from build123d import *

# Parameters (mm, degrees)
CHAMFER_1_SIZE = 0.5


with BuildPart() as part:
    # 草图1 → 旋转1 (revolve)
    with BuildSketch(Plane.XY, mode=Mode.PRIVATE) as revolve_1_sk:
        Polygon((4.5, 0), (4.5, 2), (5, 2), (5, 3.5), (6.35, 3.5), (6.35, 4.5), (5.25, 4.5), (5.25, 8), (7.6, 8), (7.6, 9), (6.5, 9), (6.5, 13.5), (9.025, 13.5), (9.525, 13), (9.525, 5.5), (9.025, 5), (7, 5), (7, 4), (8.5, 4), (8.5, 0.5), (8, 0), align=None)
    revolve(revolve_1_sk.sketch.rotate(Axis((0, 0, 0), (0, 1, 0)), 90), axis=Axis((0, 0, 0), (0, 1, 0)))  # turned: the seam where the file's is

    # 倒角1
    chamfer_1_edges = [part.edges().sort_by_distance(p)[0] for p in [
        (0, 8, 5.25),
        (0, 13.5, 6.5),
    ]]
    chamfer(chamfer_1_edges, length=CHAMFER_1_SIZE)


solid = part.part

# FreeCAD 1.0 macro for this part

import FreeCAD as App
import Part
import Sketcher


def edges_at(feature, points):
    """Names of the edges that pass closest to the given points."""
    edges = feature.Shape.Edges
    near = lambda p: min(range(len(edges)), key=lambda i: edges[i].distToShape(Part.Vertex(*p))[0])
    return sorted({f"Edge{near(p) + 1}" for p in points})


def add_polygon(sketch, points):
    """Adds a closed chain of lines whose ends are joined by coincident constraints."""
    first, n = sketch.GeometryCount, len(points)
    for a, b in zip(points, points[1:] + points[:1]):
        sketch.addGeometry(Part.LineSegment(App.Vector(*a, 0), App.Vector(*b, 0)), False)
    for i in range(n):
        sketch.addConstraint(Sketcher.Constraint("Coincident", first + i, 2, first + (i + 1) % n, 1))

doc = App.newDocument("Part")
body = doc.addObject("PartDesign::Body", "Body")

# Sketch on XY plane
sketch1 = doc.addObject("Sketcher::SketchObject", "Sketch")
body.addObject(sketch1)
sketch1.AttachmentSupport = (doc.XY_Plane, [""])
sketch1.MapMode = "FlatFace"
add_polygon(sketch1, [(4.5, 2), (4.5, 0), (8, 0), (8.5, 0.5), (8.5, 4), (7, 4), (7, 5), (9, 5), (9.5, 5.5), (9.5, 13), (9, 13.5), (6.5, 13.5), (6.5, 9), (7.6, 9), (7.6, 8), (5.2, 8), (5.2, 4.5), (6.3, 4.5), (6.3, 3.5), (5, 3.5), (5, 2)])  # lines 0-20
sketch1.addConstraint(Sketcher.Constraint("Vertical", 0))
sketch1.addConstraint(Sketcher.Constraint("Horizontal", 1))
sketch1.addConstraint(Sketcher.Constraint("Vertical", 3))
sketch1.addConstraint(Sketcher.Constraint("Horizontal", 4))
sketch1.addConstraint(Sketcher.Constraint("Vertical", 5))
sketch1.addConstraint(Sketcher.Constraint("Horizontal", 6))
sketch1.addConstraint(Sketcher.Constraint("Vertical", 8))
sketch1.addConstraint(Sketcher.Constraint("Horizontal", 10))
sketch1.addConstraint(Sketcher.Constraint("Vertical", 11))
sketch1.addConstraint(Sketcher.Constraint("Horizontal", 12))
sketch1.addConstraint(Sketcher.Constraint("Vertical", 13))
sketch1.addConstraint(Sketcher.Constraint("Horizontal", 14))
sketch1.addConstraint(Sketcher.Constraint("Vertical", 15))
sketch1.addConstraint(Sketcher.Constraint("Horizontal", 16))
sketch1.addConstraint(Sketcher.Constraint("Vertical", 17))
sketch1.addConstraint(Sketcher.Constraint("Horizontal", 18))
sketch1.addConstraint(Sketcher.Constraint("Vertical", 19))
sketch1.addConstraint(Sketcher.Constraint("Horizontal", 20))
sketch1.addConstraint(Sketcher.Constraint("PointOnObject", 0, 2, -1))
sketch1.addConstraint(Sketcher.Constraint("Parallel", 2, 7))
sketch1.addConstraint(Sketcher.Constraint("Perpendicular", 7, 9))
sketch1.addConstraint(Sketcher.Constraint("Vertical", 6, 2, 9, 2))
sketch1.addConstraint(Sketcher.Constraint("Equal", 12, 16))
sketch1.addConstraint(Sketcher.Constraint("Equal", 1, 3))
sketch1.addConstraint(Sketcher.Constraint("Equal", 5, 13))
sketch1.addConstraint(Sketcher.Constraint("Equal", 3, 15))
sketch1.addConstraint(Sketcher.Constraint("Equal", 13, 17))
sketch1.addConstraint(Sketcher.Constraint("Equal", 4, 19))
sketch1.addConstraint(Sketcher.Constraint("Equal", 2, 7))
sketch1.addConstraint(Sketcher.Constraint("Equal", 7, 9))
sketch1.addConstraint(Sketcher.Constraint("DistanceY", 0, 2, 0, 1, 2.0))
sketch1.addConstraint(Sketcher.Constraint("DistanceY", 5, 1, 5, 2, 1.0))
sketch1.addConstraint(Sketcher.Constraint("DistanceX", 1, 1, 1, 2, 3.5))
sketch1.addConstraint(Sketcher.Constraint("DistanceX", 4, 2, 4, 1, 1.5))
sketch1.addConstraint(Sketcher.Constraint("DistanceX", 12, 1, 12, 2, 1.1))
sketch1.addConstraint(Sketcher.Constraint("DistanceX", 20, 2, 20, 1, 0.5))
sketch1.addConstraint(Sketcher.Constraint("DistanceY", 8, 1, 8, 2, 7.5))
sketch1.addConstraint(Sketcher.Constraint("DistanceY", 11, 2, 11, 1, 4.5))
sketch1.addConstraint(Sketcher.Constraint("DistanceX", -1, 1, 1, 2, 8.0))
sketch1.addConstraint(Sketcher.Constraint("DistanceX", 14, 2, 14, 1, 2.35))
sketch1.addConstraint(Sketcher.Constraint("DistanceX", 18, 2, 18, 1, 1.35))
sketch1.addConstraint(Sketcher.Constraint("DistanceX", 6, 1, 6, 2, 2.025))
revolution = doc.addObject("PartDesign::Revolution", "Revolution")
body.addObject(revolution)
revolution.Profile = sketch1
revolution.ReferenceAxis = (sketch1, ["V_Axis"])
revolution.Angle = 360
doc.recompute()

chamfer = doc.addObject("PartDesign::Chamfer", "Chamfer")
body.addObject(chamfer)
chamfer.Base = (revolution, edges_at(revolution, [(0, 8, 5.25), (0, 13.5, 6.5)]))
chamfer.Size = 0.5

doc.recompute()
